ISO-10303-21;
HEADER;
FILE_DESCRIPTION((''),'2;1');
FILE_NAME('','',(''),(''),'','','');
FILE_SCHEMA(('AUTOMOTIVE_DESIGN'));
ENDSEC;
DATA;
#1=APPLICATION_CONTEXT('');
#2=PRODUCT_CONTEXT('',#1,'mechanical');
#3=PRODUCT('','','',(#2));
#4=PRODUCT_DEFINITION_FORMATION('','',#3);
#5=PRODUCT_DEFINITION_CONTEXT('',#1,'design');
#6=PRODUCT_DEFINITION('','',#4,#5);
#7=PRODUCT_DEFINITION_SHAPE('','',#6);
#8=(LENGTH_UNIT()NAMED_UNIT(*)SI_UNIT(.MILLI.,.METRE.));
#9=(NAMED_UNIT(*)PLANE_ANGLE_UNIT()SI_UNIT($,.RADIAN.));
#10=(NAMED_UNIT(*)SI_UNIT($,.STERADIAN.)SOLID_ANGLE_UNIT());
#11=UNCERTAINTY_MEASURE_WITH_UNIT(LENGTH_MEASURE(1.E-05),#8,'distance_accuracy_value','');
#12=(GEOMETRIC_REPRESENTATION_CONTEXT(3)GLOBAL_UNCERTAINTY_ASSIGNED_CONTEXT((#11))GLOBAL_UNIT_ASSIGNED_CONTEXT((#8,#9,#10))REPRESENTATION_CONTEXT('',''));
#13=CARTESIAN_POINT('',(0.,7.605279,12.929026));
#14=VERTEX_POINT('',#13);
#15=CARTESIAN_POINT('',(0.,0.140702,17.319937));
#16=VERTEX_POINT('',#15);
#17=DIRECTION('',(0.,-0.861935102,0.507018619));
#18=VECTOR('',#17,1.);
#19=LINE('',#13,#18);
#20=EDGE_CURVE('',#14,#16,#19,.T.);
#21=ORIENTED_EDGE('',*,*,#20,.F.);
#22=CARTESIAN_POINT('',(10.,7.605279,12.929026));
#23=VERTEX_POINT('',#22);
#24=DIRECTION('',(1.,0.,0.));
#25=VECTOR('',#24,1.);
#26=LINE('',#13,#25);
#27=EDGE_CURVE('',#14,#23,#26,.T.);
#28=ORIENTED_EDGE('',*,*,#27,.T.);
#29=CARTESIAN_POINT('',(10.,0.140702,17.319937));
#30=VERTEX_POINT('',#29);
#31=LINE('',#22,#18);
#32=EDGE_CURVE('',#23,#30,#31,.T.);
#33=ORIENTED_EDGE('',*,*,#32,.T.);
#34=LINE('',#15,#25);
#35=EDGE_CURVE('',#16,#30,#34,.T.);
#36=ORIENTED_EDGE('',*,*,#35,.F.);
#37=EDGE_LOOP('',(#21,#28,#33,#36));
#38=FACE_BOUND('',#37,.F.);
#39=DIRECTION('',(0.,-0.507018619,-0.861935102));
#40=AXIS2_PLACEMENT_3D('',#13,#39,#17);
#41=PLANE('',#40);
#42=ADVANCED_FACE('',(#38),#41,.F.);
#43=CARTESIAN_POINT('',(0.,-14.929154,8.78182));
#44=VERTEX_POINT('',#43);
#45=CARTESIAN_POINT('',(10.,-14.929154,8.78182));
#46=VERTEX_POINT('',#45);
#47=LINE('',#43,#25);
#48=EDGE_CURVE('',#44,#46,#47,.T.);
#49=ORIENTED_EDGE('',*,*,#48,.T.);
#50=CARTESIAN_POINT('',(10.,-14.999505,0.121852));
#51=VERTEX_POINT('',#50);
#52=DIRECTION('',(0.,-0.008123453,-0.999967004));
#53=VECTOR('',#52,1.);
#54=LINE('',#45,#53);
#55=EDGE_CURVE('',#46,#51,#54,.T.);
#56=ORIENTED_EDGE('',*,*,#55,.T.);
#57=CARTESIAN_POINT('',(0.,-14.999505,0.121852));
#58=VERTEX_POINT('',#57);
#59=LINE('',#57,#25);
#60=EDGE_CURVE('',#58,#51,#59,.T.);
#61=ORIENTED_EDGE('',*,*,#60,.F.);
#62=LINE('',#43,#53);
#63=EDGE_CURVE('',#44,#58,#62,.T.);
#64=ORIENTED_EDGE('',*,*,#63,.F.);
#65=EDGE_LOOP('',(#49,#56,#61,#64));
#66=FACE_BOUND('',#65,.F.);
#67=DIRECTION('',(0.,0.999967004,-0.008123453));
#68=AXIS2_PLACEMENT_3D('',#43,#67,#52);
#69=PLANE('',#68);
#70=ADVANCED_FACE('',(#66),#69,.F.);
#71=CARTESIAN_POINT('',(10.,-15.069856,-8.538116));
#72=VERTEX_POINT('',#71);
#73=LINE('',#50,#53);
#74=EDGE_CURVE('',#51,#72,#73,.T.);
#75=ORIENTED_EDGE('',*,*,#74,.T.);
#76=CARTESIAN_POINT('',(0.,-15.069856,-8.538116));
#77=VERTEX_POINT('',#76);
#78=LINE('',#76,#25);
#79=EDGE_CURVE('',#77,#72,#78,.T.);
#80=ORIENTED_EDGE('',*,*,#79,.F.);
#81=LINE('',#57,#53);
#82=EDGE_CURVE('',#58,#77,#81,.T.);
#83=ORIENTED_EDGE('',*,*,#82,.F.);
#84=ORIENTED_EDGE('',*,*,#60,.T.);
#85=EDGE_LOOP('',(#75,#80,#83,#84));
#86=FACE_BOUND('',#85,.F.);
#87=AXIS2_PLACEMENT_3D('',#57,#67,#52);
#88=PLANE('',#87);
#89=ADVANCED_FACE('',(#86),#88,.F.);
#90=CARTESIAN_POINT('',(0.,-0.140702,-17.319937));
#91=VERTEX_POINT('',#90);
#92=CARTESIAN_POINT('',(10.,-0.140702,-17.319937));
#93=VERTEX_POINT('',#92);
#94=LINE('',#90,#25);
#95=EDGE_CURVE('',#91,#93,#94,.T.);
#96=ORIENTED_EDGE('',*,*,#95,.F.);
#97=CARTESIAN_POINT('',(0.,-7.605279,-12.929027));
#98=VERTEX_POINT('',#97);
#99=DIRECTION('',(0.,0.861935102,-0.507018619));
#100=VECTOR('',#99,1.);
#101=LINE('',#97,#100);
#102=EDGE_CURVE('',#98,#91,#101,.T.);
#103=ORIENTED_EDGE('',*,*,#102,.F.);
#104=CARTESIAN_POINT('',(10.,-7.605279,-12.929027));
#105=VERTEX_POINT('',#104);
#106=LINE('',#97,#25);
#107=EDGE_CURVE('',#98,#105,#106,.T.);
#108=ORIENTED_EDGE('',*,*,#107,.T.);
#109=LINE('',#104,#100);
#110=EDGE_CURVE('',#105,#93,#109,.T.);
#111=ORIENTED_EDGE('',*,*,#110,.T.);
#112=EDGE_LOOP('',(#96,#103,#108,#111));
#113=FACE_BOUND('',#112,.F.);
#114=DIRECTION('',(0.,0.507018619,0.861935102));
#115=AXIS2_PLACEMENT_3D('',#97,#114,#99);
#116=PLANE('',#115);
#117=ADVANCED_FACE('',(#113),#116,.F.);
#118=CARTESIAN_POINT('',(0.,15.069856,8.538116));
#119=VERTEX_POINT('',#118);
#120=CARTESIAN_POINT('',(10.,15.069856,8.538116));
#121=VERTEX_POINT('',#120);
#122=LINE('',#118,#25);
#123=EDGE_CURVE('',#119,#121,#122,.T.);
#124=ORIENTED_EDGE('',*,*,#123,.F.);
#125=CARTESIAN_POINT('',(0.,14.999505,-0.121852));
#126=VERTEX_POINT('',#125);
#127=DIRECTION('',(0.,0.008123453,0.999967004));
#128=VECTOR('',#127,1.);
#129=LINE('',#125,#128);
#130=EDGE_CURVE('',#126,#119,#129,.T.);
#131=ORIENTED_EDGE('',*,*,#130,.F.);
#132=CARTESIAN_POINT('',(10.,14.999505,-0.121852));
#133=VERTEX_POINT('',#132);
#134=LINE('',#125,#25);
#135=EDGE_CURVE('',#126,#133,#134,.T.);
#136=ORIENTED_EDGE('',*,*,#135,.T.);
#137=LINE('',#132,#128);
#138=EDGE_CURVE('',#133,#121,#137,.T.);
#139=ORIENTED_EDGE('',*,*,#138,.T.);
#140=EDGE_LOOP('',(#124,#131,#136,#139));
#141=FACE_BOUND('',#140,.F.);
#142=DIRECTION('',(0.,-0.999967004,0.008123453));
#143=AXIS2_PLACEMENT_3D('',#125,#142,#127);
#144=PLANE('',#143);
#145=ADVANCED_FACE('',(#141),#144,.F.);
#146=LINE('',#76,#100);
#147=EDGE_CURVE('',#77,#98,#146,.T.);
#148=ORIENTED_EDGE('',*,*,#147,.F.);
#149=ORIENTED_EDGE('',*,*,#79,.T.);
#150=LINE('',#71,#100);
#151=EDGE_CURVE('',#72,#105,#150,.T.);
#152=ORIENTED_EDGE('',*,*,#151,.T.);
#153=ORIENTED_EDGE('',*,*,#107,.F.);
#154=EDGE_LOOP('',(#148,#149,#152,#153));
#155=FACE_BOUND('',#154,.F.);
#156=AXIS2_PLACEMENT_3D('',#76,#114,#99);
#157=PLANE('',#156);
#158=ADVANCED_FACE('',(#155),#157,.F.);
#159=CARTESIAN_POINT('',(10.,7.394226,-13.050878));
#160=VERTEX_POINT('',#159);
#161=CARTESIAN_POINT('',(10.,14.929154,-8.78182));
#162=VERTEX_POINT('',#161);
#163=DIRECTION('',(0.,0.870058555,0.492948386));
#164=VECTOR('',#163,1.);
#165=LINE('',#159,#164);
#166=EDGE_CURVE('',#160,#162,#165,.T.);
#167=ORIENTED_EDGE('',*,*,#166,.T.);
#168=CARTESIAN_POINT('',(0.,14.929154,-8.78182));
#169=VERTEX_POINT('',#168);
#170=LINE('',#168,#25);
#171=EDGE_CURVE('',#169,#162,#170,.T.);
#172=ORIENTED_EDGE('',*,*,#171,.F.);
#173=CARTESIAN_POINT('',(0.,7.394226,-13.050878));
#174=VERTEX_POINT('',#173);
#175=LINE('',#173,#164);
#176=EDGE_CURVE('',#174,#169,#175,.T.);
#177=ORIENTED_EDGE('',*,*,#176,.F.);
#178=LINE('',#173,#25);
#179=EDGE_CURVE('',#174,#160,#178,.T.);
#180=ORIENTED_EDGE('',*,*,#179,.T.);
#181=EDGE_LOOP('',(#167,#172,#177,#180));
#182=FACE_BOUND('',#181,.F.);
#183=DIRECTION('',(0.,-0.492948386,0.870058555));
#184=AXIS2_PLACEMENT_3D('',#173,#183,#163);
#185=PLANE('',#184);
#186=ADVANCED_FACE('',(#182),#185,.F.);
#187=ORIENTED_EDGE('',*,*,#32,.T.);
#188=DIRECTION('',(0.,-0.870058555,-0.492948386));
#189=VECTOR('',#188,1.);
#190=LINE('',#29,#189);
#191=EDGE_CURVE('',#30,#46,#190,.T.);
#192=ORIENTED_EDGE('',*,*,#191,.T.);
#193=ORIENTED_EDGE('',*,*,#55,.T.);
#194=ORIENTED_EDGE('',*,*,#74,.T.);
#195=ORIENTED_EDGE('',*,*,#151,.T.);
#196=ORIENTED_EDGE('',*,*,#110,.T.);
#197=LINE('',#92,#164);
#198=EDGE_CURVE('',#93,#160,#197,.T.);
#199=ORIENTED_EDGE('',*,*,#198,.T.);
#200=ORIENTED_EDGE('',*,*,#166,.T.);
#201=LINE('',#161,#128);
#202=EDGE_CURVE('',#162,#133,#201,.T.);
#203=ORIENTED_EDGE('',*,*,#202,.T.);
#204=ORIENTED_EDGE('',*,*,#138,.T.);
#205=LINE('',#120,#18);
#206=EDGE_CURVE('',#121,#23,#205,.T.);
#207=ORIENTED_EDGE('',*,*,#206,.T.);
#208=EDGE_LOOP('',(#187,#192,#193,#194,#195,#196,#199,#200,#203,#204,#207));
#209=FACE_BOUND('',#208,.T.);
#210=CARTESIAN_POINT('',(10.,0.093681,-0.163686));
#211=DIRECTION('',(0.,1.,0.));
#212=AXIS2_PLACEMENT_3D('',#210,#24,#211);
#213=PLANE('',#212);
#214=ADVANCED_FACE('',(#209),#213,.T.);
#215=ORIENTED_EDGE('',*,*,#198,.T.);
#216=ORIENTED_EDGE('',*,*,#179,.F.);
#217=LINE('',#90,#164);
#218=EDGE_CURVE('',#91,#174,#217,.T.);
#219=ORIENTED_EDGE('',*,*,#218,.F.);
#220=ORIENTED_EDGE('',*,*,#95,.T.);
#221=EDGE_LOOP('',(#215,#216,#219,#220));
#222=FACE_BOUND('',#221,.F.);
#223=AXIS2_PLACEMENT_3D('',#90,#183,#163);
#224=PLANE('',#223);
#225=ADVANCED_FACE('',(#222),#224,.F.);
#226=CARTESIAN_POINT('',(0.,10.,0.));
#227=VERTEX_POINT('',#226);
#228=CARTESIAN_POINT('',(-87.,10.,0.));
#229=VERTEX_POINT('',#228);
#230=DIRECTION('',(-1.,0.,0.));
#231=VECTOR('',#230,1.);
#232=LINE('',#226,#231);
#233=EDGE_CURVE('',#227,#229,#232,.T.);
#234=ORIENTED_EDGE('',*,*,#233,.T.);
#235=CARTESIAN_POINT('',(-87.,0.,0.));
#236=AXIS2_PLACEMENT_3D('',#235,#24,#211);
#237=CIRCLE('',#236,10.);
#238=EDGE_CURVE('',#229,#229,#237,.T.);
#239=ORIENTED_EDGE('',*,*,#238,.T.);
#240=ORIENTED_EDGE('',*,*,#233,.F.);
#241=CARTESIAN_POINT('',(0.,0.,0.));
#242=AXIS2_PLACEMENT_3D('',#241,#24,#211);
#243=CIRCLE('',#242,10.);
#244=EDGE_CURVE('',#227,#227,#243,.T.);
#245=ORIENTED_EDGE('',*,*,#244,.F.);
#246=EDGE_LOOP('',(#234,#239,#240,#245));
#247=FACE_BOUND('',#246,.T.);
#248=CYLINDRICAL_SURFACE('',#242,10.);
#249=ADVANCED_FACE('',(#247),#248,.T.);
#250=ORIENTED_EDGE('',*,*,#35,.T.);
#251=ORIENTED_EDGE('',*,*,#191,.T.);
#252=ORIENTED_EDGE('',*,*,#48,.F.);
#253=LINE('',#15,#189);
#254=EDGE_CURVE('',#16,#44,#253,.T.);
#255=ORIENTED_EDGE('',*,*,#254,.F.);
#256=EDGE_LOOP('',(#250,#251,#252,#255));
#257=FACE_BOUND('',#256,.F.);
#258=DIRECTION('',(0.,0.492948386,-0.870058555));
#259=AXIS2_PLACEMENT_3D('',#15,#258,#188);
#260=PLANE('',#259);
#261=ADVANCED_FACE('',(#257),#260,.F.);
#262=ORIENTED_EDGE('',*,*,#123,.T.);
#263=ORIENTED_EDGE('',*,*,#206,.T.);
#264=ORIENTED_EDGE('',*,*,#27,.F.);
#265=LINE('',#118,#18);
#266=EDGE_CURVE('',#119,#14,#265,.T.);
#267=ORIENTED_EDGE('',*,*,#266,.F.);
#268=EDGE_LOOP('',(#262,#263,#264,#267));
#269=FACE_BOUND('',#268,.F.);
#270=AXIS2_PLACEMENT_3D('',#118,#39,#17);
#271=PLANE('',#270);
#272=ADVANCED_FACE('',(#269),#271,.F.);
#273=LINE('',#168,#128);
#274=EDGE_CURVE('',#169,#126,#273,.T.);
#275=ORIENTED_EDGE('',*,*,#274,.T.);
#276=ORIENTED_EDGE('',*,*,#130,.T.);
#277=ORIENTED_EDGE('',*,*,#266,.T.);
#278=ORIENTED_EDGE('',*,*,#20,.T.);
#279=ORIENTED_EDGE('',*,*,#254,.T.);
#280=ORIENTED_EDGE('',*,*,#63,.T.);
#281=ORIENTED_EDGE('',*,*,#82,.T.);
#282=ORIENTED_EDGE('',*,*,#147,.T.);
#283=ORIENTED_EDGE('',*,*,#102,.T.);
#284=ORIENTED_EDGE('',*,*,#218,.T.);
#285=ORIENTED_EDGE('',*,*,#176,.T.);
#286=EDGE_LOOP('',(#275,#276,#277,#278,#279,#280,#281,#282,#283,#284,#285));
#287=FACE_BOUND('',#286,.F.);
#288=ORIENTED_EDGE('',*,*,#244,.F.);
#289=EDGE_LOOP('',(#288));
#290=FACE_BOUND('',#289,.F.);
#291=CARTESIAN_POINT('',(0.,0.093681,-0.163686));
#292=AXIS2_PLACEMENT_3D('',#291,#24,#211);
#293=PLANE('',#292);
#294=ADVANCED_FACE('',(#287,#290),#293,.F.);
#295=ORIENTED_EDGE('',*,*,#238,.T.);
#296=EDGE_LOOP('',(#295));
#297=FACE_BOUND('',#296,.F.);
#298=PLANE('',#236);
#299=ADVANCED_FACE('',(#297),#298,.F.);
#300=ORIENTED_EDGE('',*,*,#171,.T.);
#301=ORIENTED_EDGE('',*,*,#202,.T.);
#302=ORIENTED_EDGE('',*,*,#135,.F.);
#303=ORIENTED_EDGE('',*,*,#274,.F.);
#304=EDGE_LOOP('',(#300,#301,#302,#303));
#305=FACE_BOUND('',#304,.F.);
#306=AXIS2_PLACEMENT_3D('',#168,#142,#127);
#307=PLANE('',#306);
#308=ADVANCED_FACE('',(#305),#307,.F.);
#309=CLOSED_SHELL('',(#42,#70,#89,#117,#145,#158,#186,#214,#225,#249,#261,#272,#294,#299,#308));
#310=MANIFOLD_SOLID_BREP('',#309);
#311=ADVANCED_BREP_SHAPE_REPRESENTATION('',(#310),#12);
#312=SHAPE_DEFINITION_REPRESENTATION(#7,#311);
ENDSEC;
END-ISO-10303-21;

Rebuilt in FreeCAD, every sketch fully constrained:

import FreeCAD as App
import Part
import Sketcher
from FreeCAD import Vector
Q = App.Units.Quantity


def add_polygon(sketch, points):
    """Adds a closed chain of lines whose ends are joined by coincident constraints."""
    first, n = sketch.GeometryCount, len(points)
    for a, b in zip(points, points[1:] + points[:1]):
        sketch.addGeometry(Part.LineSegment(App.Vector(*a, 0), App.Vector(*b, 0)), False)
    for i in range(n):
        sketch.addConstraint(Sketcher.Constraint("Coincident", first + i, 2, first + (i + 1) % n, 1))

doc = App.newDocument("Part")
body = doc.addObject("PartDesign::Body", "Body")

sketch1 = doc.addObject("Sketcher::SketchObject", "Sketch")
body.addObject(sketch1)
sketch1.AttachmentSupport = (doc.YZ_Plane, [""])
sketch1.MapMode = "FlatFace"
sketch1.addGeometry(Part.Circle(Vector(0, 0, 0), Vector(0, 0, 1), 10), False)
sketch1.addConstraint(Sketcher.Constraint("Coincident", 0, 3, -1, 1))
sketch1.addConstraint(Sketcher.Constraint("Diameter", 0, Q("20 mm")))
pad1 = doc.addObject("PartDesign::Pad", "Pad")
body.addObject(pad1)
pad1.Profile = sketch1
pad1.Length = 87
pad1.Reversed = True

sketch2 = doc.addObject("Sketcher::SketchObject", "Sketch001")
body.addObject(sketch2)
sketch2.AttachmentSupport = (doc.YZ_Plane, [""])
sketch2.MapMode = "FlatFace"
add_polygon(sketch2, [(14.999505, -0.121852), (15.069856, 8.538116), (7.605279, 12.929026), (0.140702, 17.319937), (-14.929154, 8.78182), (-14.999505, 0.121852), (-15.069856, -8.538116), (-7.605279, -12.929027), (-0.140702, -17.319937), (7.394226, -13.050878), (14.929154, -8.78182)])
sketch2.addConstraint(Sketcher.Constraint("Symmetric", 0, 2, 5, 2, -1, 1))
sketch2.addConstraint(Sketcher.Constraint("Symmetric", 1, 2, 6, 2, -1, 1))
sketch2.addConstraint(Sketcher.Constraint("Symmetric", 2, 2, 7, 2, -1, 1))
sketch2.addConstraint(Sketcher.Constraint("Symmetric", 3, 2, 9, 2, -1, 1))
sketch2.addConstraint(Sketcher.Constraint("Symmetric", 4, 2, 10, 2, -1, 1))
sketch2.addConstraint(Sketcher.Constraint("Parallel", 1, 2))
sketch2.addConstraint(Sketcher.Constraint("Parallel", 0, 4))
sketch2.addConstraint(Sketcher.Constraint("Parallel", 3, 8))
sketch2.addConstraint(Sketcher.Constraint("Equal", 0, 1))
sketch2.addConstraint(Sketcher.Constraint("Equal", 1, 2))
sketch2.addConstraint(Sketcher.Constraint("Equal", 2, 4))
sketch2.addConstraint(Sketcher.Constraint("Equal", 7, 8))
sketch2.addConstraint(Sketcher.Constraint("Equal", 8, 9))
sketch2.addConstraint(Sketcher.Constraint("Distance", 3, Q("17.320508 mm")))
sketch2.addConstraint(Sketcher.Constraint("DistanceX", -1, 1, 1, 2, Q("7.605279 mm")))
sketch2.addConstraint(Sketcher.Constraint("DistanceY", -1, 1, 3, 2, Q("8.78182 mm")))
sketch2.addConstraint(Sketcher.Constraint("DistanceY", 8, 2, -1, 1, Q("13.050878 mm")))
pad2 = doc.addObject("PartDesign::Pad", "Pad001")
body.addObject(pad2)
pad2.Profile = sketch2
pad2.Length = 10

doc.recompute()
